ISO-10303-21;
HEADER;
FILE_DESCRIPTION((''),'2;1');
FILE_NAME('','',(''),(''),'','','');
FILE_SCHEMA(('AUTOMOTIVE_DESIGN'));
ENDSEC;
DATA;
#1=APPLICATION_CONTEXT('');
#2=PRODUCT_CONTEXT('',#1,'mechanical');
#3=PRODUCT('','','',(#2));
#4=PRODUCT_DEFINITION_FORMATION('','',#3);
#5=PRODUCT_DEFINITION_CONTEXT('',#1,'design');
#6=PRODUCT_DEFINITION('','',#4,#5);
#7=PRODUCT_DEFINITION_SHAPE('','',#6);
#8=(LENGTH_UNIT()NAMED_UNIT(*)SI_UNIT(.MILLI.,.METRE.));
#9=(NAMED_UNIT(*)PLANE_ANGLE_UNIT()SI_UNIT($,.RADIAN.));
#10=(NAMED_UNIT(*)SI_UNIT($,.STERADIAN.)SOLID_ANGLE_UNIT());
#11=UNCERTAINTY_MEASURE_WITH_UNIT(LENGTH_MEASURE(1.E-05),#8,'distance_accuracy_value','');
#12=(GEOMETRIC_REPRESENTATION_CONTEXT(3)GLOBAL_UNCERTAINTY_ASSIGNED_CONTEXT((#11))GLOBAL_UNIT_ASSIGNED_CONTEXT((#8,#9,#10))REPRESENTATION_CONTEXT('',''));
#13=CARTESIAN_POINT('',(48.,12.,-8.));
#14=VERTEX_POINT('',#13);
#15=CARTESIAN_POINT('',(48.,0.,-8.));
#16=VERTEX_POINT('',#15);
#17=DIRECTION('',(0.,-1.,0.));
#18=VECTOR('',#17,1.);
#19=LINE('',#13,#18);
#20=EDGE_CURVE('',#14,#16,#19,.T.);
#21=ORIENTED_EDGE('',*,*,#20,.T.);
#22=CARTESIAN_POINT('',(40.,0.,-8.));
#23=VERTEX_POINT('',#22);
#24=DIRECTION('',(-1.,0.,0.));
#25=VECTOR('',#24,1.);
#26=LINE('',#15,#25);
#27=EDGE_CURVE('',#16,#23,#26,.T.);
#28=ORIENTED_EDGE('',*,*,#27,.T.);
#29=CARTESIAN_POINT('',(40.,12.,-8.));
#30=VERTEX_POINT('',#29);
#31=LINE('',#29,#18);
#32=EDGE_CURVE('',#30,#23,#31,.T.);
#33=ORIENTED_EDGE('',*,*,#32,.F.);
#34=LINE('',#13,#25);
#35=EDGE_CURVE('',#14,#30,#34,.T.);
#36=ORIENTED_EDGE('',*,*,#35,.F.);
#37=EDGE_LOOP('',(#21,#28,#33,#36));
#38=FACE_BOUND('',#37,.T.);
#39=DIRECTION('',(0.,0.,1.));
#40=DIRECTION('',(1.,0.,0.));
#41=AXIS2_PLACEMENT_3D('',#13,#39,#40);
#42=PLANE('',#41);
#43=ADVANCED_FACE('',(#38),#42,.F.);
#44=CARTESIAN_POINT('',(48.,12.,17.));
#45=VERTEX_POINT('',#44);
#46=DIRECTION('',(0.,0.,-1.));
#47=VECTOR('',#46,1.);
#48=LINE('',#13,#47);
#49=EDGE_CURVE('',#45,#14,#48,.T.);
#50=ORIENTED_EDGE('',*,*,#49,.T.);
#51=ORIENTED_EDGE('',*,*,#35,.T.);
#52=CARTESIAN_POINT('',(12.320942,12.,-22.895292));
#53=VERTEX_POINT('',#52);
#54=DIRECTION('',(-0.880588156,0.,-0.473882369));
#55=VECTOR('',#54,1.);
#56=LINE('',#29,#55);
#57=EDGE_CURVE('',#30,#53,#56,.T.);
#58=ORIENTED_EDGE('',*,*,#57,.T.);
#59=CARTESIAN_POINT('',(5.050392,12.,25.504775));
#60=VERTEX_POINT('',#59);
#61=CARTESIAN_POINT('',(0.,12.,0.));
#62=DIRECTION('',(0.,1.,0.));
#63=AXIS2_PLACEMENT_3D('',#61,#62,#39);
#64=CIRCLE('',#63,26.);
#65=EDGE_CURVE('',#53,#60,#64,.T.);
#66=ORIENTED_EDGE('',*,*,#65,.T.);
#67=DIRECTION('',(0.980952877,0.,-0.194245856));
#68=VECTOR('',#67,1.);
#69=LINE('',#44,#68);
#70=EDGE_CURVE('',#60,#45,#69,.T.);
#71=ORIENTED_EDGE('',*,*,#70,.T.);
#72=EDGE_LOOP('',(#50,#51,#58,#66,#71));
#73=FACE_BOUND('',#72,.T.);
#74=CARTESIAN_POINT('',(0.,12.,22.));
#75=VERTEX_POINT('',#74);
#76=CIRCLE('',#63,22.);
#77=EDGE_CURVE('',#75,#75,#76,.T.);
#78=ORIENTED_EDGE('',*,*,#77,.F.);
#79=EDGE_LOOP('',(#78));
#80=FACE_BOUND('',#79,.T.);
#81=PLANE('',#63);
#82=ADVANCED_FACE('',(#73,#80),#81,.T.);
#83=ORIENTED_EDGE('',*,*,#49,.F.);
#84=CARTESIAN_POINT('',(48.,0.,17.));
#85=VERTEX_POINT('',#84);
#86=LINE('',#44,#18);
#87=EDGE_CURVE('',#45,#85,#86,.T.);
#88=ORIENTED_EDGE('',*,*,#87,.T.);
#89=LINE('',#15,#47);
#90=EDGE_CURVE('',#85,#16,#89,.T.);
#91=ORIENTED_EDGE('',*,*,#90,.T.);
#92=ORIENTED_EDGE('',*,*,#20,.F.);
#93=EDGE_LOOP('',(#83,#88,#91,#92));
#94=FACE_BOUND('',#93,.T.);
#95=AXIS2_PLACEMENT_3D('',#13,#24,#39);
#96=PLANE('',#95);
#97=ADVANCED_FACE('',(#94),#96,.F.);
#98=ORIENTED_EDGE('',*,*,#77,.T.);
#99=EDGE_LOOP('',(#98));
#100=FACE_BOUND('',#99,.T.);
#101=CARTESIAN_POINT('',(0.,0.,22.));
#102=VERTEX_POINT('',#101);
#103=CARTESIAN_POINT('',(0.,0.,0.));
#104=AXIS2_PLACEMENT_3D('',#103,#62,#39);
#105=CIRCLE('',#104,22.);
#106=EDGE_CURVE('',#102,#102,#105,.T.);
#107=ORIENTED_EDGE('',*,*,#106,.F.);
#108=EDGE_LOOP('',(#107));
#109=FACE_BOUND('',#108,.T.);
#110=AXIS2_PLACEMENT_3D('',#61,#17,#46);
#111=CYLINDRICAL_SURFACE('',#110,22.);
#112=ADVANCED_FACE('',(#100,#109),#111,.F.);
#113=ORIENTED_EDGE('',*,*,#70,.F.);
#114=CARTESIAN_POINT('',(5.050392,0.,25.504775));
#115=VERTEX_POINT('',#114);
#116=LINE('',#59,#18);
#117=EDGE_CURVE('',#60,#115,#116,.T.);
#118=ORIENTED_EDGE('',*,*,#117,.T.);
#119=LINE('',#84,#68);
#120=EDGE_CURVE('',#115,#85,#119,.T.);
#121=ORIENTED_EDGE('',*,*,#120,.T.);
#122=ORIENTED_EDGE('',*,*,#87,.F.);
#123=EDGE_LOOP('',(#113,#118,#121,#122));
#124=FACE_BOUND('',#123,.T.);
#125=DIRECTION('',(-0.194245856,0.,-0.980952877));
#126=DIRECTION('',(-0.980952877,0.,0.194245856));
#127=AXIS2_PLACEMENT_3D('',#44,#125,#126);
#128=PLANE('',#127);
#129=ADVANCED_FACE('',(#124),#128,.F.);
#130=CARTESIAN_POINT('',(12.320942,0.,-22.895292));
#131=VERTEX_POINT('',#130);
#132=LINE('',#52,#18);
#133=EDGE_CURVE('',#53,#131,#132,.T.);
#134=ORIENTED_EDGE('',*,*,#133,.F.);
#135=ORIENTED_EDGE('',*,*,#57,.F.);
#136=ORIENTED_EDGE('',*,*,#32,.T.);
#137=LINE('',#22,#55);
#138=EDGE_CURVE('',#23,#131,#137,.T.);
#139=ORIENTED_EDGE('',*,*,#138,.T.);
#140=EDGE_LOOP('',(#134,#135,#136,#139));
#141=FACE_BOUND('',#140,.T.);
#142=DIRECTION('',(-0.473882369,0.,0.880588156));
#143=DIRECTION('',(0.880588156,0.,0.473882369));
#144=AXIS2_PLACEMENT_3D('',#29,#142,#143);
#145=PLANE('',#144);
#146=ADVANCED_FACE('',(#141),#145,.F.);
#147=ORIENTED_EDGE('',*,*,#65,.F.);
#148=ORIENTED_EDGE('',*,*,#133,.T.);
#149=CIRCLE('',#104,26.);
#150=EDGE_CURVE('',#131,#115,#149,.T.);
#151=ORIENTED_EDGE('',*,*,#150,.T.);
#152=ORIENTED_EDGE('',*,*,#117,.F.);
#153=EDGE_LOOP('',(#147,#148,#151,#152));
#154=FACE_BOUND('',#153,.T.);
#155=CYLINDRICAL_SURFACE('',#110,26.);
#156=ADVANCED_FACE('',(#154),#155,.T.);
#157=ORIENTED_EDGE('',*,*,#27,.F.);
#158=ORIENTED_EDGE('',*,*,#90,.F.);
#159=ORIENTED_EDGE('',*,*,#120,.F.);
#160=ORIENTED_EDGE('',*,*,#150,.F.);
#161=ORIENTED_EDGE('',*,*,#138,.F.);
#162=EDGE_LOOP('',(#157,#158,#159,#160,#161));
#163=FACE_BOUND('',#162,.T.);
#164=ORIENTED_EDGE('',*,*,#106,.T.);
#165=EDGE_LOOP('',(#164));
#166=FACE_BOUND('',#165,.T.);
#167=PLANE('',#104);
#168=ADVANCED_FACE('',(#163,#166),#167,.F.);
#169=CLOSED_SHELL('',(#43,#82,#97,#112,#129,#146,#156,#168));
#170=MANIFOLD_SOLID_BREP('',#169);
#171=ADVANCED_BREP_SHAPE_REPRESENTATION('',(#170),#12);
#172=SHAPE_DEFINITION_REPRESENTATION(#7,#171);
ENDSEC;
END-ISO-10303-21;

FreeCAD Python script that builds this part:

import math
import FreeCAD as App
import Part
import Sketcher

V = App.Vector
Q = App.Units.Quantity

doc = App.newDocument("Part")
params = doc.addObject("Spreadsheet::Sheet", "Params")
for row, (alias, value) in enumerate([
    ("sketch1_diameter", "44 mm"),
    ("sketch1_radius", "26 mm"),
    ("sketch1_width", "8 mm"),
    ("sketch1_height", "25 mm"),
    ("pad1_length", "12 mm"),
], start=1):
    params.set(f"A{row}", alias)
    params.set(f"B{row}", "=" + value)
    params.setAlias(f"B{row}", alias)

body = doc.addObject("PartDesign::Body", "Body")

# Sketch on XZ plane
sketch1 = body.newObject("Sketcher::SketchObject", "Sketch")
sketch1.AttachmentSupport = (doc.getObject("XZ_Plane"), [""])
sketch1.MapMode = "FlatFace"
sketch1.addGeometry([
    Part.LineSegment(V(48, -8, 0), V(40, -8, 0)),  # 0
    Part.LineSegment(V(40, -8, 0), V(12.320942, -22.895292, 0)),  # 1
    Part.ArcOfCircle(Part.Circle(V(0, 0, 0), V(0, 0, 1), 26), math.radians(78.799328), math.radians(298.286606)),  # 2
    Part.LineSegment(V(5.050392, 25.504775, 0), V(48, 17, 0)),  # 3
    Part.LineSegment(V(48, 17, 0), V(48, -8, 0)),  # 4
    Part.Circle(V(0, 0, 0), V(0, 0, 1), 22),  # 5
], False)
sketch1.addConstraint([
    Sketcher.Constraint("Coincident", 0, 2, 1, 1),
    Sketcher.Constraint("Tangent", 1, 2, 2, 2),
    Sketcher.Constraint("Tangent", 2, 1, 3, 1),
    Sketcher.Constraint("Coincident", 3, 2, 4, 1),
    Sketcher.Constraint("Coincident", 4, 2, 0, 1),
    Sketcher.Constraint("Horizontal", 0),
    Sketcher.Constraint("Vertical", 4),
    Sketcher.Constraint("Coincident", 2, 3, -1, 1),
    Sketcher.Constraint("Coincident", 5, 3, -1, 1),
    Sketcher.Constraint("Diameter", 5, Q("44 mm")),
    Sketcher.Constraint("Radius", 2, Q("26 mm")),
    Sketcher.Constraint("DistanceX", 0, 2, 0, 1, Q("8 mm")),
    Sketcher.Constraint("DistanceY", 4, 2, 4, 1, Q("25 mm")),
    Sketcher.Constraint("DistanceX", -1, 1, 0, 2, Q("40 mm")),
    Sketcher.Constraint("DistanceY", 0, 2, -1, 1, Q("8 mm")),
])
sketch1.setExpression("Constraints[9]", "Params.sketch1_diameter")
sketch1.setExpression("Constraints[10]", "Params.sketch1_radius")
sketch1.setExpression("Constraints[11]", "Params.sketch1_width")
sketch1.setExpression("Constraints[12]", "Params.sketch1_height")
pad1 = body.newObject("PartDesign::Pad", "Pad")
pad1.Profile = sketch1
pad1.setExpression("Length", "Params.pad1_length")
pad1.Reversed = True

doc.recompute()
